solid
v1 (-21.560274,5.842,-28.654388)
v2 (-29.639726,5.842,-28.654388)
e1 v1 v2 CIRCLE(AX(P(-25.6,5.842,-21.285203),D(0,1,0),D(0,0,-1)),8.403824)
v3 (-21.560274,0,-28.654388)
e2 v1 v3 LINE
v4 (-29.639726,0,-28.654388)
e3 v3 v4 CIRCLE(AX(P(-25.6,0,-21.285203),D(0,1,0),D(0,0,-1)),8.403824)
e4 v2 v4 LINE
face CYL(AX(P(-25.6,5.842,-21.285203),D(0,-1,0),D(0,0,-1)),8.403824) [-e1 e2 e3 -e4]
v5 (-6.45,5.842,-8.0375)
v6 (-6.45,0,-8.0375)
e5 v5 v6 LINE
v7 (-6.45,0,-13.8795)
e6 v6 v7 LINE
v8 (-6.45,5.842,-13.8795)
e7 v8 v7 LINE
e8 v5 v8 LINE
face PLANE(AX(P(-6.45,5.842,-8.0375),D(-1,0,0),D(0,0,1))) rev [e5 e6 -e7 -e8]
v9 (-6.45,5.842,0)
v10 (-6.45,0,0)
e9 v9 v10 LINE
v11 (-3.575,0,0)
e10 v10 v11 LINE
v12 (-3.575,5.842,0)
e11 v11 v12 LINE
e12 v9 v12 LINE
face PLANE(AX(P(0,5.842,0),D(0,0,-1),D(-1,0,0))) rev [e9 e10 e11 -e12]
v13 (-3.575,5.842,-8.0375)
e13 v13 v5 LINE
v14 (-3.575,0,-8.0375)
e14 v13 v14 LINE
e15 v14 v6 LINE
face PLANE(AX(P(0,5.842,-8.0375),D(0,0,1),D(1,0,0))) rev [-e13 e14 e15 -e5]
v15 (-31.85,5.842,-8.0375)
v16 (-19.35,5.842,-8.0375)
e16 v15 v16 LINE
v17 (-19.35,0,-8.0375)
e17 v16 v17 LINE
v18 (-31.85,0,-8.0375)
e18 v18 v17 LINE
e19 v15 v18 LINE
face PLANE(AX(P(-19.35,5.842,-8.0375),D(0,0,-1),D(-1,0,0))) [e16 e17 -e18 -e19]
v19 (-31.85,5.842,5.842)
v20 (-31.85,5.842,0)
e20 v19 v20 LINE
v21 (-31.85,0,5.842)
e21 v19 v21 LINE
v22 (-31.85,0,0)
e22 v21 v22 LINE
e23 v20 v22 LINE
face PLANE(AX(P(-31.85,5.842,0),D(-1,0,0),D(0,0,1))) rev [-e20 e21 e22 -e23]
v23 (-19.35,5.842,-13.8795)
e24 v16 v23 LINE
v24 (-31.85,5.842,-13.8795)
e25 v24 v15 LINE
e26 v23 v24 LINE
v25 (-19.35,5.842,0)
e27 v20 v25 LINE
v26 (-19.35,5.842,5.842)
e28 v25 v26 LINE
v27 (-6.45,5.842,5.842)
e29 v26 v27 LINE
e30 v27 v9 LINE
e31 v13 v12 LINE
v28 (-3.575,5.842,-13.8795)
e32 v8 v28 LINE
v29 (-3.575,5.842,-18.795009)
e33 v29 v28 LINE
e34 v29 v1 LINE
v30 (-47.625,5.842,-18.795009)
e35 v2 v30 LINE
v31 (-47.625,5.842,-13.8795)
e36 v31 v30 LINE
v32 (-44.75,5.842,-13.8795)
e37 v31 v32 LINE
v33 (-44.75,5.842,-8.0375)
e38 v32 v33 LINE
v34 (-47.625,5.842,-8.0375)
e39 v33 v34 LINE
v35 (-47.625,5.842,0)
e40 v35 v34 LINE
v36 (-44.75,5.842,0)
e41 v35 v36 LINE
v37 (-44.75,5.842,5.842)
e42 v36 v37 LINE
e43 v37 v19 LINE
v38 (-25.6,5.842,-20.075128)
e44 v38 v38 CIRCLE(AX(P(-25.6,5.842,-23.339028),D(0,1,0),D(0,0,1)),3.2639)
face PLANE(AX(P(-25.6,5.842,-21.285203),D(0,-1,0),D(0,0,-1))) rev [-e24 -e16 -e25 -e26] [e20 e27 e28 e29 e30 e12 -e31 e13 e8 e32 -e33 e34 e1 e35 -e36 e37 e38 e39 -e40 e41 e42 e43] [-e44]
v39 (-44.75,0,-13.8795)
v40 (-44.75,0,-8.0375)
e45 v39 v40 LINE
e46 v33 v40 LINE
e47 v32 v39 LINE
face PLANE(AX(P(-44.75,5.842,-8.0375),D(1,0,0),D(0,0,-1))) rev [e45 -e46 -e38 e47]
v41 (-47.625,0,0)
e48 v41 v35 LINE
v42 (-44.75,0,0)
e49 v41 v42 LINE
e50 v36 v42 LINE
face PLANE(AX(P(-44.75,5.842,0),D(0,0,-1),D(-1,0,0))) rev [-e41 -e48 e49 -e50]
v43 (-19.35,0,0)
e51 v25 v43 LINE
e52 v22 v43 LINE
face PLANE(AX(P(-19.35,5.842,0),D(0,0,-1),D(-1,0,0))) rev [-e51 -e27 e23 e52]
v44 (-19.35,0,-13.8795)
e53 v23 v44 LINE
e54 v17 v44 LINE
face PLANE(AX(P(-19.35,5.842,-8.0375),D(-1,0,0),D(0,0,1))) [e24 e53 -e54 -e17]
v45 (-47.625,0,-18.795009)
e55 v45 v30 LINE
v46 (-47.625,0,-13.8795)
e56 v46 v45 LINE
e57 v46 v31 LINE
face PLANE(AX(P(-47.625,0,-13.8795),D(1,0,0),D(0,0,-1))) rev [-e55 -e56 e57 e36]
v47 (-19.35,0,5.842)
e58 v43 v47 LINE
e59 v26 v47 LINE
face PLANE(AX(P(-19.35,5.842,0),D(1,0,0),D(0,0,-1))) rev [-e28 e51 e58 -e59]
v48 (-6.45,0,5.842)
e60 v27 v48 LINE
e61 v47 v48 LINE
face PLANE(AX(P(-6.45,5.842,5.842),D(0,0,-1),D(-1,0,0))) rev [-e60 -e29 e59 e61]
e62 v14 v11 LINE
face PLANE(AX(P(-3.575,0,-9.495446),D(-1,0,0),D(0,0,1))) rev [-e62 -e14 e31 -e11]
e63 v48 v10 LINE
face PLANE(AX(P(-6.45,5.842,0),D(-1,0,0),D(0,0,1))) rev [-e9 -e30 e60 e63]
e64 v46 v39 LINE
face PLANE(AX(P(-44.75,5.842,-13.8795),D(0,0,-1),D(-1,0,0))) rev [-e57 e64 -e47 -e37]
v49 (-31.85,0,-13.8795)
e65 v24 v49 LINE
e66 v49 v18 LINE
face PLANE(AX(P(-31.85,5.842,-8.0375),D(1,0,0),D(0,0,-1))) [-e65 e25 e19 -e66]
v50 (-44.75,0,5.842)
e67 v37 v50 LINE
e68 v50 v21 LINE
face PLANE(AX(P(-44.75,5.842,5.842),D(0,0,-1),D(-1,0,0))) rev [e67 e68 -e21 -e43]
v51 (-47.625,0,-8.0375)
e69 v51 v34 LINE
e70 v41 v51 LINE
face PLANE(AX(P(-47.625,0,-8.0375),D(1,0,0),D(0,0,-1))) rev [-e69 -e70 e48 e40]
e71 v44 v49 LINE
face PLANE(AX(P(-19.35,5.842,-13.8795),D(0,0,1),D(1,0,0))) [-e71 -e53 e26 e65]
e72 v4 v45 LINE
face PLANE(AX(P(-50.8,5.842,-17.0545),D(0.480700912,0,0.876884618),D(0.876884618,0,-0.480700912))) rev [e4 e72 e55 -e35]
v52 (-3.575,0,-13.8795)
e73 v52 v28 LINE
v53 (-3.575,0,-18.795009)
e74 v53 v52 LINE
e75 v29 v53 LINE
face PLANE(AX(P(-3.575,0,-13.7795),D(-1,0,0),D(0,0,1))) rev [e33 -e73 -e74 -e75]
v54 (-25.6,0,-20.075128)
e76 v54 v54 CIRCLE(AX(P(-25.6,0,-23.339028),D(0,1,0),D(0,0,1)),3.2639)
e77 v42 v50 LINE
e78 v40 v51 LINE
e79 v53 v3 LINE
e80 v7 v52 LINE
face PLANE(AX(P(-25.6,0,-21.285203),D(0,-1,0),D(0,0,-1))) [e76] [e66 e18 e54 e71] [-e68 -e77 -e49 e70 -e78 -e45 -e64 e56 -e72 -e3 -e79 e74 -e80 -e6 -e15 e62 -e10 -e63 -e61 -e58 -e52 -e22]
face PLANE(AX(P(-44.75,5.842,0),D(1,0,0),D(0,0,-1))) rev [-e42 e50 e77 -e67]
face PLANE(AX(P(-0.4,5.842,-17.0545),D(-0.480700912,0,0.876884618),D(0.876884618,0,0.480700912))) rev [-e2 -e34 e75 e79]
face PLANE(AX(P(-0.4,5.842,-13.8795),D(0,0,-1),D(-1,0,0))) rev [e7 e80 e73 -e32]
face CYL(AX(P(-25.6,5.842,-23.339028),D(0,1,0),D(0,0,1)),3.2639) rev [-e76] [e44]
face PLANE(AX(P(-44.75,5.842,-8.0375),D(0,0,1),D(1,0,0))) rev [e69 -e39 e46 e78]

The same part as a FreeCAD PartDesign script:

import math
import FreeCAD as App
import Part
import Sketcher
from FreeCAD import Vector
Q = App.Units.Quantity


def add_polygon(sketch, points):
    """Adds a closed chain of lines whose ends are joined by coincident constraints."""
    first, n = sketch.GeometryCount, len(points)
    for a, b in zip(points, points[1:] + points[:1]):
        sketch.addGeometry(Part.LineSegment(App.Vector(*a, 0), App.Vector(*b, 0)), False)
    for i in range(n):
        sketch.addConstraint(Sketcher.Constraint("Coincident", first + i, 2, first + (i + 1) % n, 1))

doc = App.newDocument("Part")
params = doc.addObject("Spreadsheet::Sheet", "Params")
for row, (alias, value) in enumerate([
    ("sketch1_height", "0.23 in"),
    ("sketch1_height2", "0.125 in"),
    ("pad1_length", "0.23 in"),
    ("sketch2_diameter", "0.257 in"),
    ("hole_diameter", "0.257 in"),
    ("sketch3_height", "0.25 in"),
    ("sketch3_width", "0.125 in"),
], start=1):
    params.set(f"A{row}", alias)
    params.set(f"B{row}", "=" + value)
    params.setAlias(f"B{row}", alias)

body = doc.addObject("PartDesign::Body", "Body")

# Sketch on XZ plane
sketch1 = body.newObject("Sketcher::SketchObject", "Sketch")
sketch1.AttachmentSupport = (doc.getObject("XZ_Plane"), [""])
sketch1.MapMode = "FlatFace"
sketch1.addGeometry(Part.LineSegment(Vector(-6.45, 0, 0), Vector(0, 0, 0)), False)  # 0
sketch1.addGeometry(Part.LineSegment(Vector(0, 0, 0), Vector(0, -8.0375, 0)), False)  # 1
sketch1.addGeometry(Part.LineSegment(Vector(0, -8.0375, 0), Vector(-6.45, -8.0375, 0)), False)  # 2
sketch1.addGeometry(Part.LineSegment(Vector(-6.45, -8.0375, 0), Vector(-6.45, -13.8795, 0)), False)  # 3
sketch1.addGeometry(Part.LineSegment(Vector(-6.45, -13.8795, 0), Vector(-0.4, -13.8795, 0)), False)  # 4
sketch1.addGeometry(Part.LineSegment(Vector(-0.4, -13.8795, 0), Vector(-0.4, -17.0545, 0)), False)  # 5
sketch1.addGeometry(Part.LineSegment(Vector(-0.4, -17.0545, 0), Vector(-21.560274, -28.654388, 0)), False)  # 6
sketch1.addGeometry(Part.ArcOfCircle(Part.Circle(Vector(-25.6, -21.285203, 0), Vector(0, 0, 1), 8.403824), math.radians(-118.73119), math.radians(-61.26881)), False)  # 7
sketch1.addGeometry(Part.LineSegment(Vector(-29.639726, -28.654388, 0), Vector(-50.8, -17.0545, 0)), False)  # 8
sketch1.addGeometry(Part.LineSegment(Vector(-50.8, -17.0545, 0), Vector(-50.8, -13.8795, 0)), False)  # 9
sketch1.addGeometry(Part.LineSegment(Vector(-50.8, -13.8795, 0), Vector(-44.75, -13.8795, 0)), False)  # 10
sketch1.addGeometry(Part.LineSegment(Vector(-44.75, -13.8795, 0), Vector(-44.75, -8.0375, 0)), False)  # 11
sketch1.addGeometry(Part.LineSegment(Vector(-44.75, -8.0375, 0), Vector(-50.8, -8.0375, 0)), False)  # 12
sketch1.addGeometry(Part.LineSegment(Vector(-50.8, -8.0375, 0), Vector(-50.8, 0, 0)), False)  # 13
sketch1.addGeometry(Part.LineSegment(Vector(-50.8, 0, 0), Vector(-44.75, 0, 0)), False)  # 14
sketch1.addGeometry(Part.LineSegment(Vector(-44.75, 0, 0), Vector(-44.75, 5.842, 0)), False)  # 15
sketch1.addGeometry(Part.LineSegment(Vector(-44.75, 5.842, 0), Vector(-31.85, 5.842, 0)), False)  # 16
sketch1.addGeometry(Part.LineSegment(Vector(-31.85, 5.842, 0), Vector(-31.85, 0, 0)), False)  # 17
sketch1.addGeometry(Part.LineSegment(Vector(-31.85, 0, 0), Vector(-19.35, 0, 0)), False)  # 18
sketch1.addGeometry(Part.LineSegment(Vector(-19.35, 0, 0), Vector(-19.35, 5.842, 0)), False)  # 19
sketch1.addGeometry(Part.LineSegment(Vector(-19.35, 5.842, 0), Vector(-6.45, 5.842, 0)), False)  # 20
sketch1.addGeometry(Part.LineSegment(Vector(-6.45, 5.842, 0), Vector(-6.45, 0, 0)), False)  # 21
add_polygon(sketch1, [(-31.85, -8.0375), (-31.85, -13.8795), (-19.35, -13.8795), (-19.35, -8.0375)])  # lines 22-25
sketch1.addConstraint([
    Sketcher.Constraint("Coincident", 0, 2, 1, 1),
    Sketcher.Constraint("Coincident", 1, 2, 2, 1),
    Sketcher.Constraint("Coincident", 2, 2, 3, 1),
    Sketcher.Constraint("Coincident", 3, 2, 4, 1),
    Sketcher.Constraint("Coincident", 4, 2, 5, 1),
    Sketcher.Constraint("Coincident", 5, 2, 6, 1),
    Sketcher.Constraint("Tangent", 6, 2, 7, 2),
    Sketcher.Constraint("Tangent", 7, 1, 8, 1),
    Sketcher.Constraint("Coincident", 8, 2, 9, 1),
    Sketcher.Constraint("Coincident", 9, 2, 10, 1),
    Sketcher.Constraint("Coincident", 10, 2, 11, 1),
    Sketcher.Constraint("Coincident", 11, 2, 12, 1),
    Sketcher.Constraint("Coincident", 12, 2, 13, 1),
    Sketcher.Constraint("Coincident", 13, 2, 14, 1),
    Sketcher.Constraint("Coincident", 14, 2, 15, 1),
    Sketcher.Constraint("Coincident", 15, 2, 16, 1),
    Sketcher.Constraint("Coincident", 16, 2, 17, 1),
    Sketcher.Constraint("Coincident", 17, 2, 18, 1),
    Sketcher.Constraint("Coincident", 18, 2, 19, 1),
    Sketcher.Constraint("Coincident", 19, 2, 20, 1),
    Sketcher.Constraint("Coincident", 20, 2, 21, 1),
    Sketcher.Constraint("Coincident", 21, 2, 0, 1),
    Sketcher.Constraint("Horizontal", 0),
    Sketcher.Constraint("Vertical", 1),
    Sketcher.Constraint("Horizontal", 2),
    Sketcher.Constraint("Vertical", 3),
    Sketcher.Constraint("Horizontal", 4),
    Sketcher.Constraint("Vertical", 5),
    Sketcher.Constraint("Vertical", 9),
    Sketcher.Constraint("Horizontal", 10),
    Sketcher.Constraint("Vertical", 11),
    Sketcher.Constraint("Horizontal", 12),
    Sketcher.Constraint("Vertical", 13),
    Sketcher.Constraint("Horizontal", 14),
    Sketcher.Constraint("Vertical", 15),
    Sketcher.Constraint("Horizontal", 16),
    Sketcher.Constraint("Vertical", 17),
    Sketcher.Constraint("Horizontal", 18),
    Sketcher.Constraint("Vertical", 19),
    Sketcher.Constraint("Horizontal", 20),
    Sketcher.Constraint("Vertical", 21),
    Sketcher.Constraint("Vertical", 22),
    Sketcher.Constraint("Horizontal", 23),
    Sketcher.Constraint("Vertical", 24),
    Sketcher.Constraint("Horizontal", 25),
    Sketcher.Constraint("Coincident", 0, 2, -1, 1),
    Sketcher.Constraint("PointOnObject", 13, 2, -1),
    Sketcher.Constraint("PointOnObject", 17, 2, -1),
    Sketcher.Constraint("Horizontal", 6, 2, 7, 1),
    Sketcher.Constraint("Horizontal", 5, 2, 8, 2),
    Sketcher.Constraint("Horizontal", 4, 2, 9, 2),
    Sketcher.Constraint("Horizontal", 2, 2, 11, 2),
    Sketcher.Constraint("Horizontal", 16, 2, 19, 2),
    Sketcher.Constraint("Horizontal", 10, 2, 22, 2),
    Sketcher.Constraint("Horizontal", 12, 2, 24, 2),
    Sketcher.Constraint("Vertical", 9, 2, 12, 2),
    Sketcher.Constraint("Vertical", 11, 2, 14, 2),
    Sketcher.Constraint("Vertical", 3, 2, 20, 2),
    Sketcher.Constraint("Vertical", 17, 2, 22, 2),
    Sketcher.Constraint("Vertical", 19, 2, 23, 2),
    Sketcher.Constraint("Equal", 4, 10),
    Sketcher.Constraint("Equal", 16, 20),
    Sketcher.Constraint("Equal", 11, 15),
    Sketcher.Constraint("DistanceX", 8, 2, -1, 1, Q("2 in")),
    Sketcher.Constraint("DistanceY", 3, 2, 3, 1, Q("0.23 in")),
    Sketcher.Constraint("DistanceY", 5, 2, 5, 1, Q("0.125 in")),
    Sketcher.Constraint("DistanceY", 7, 3, -1, 1, Q("0.8380001 in")),
    Sketcher.Constraint("DistanceX", 0, 1, 0, 2, 6.45),
    Sketcher.Constraint("DistanceX", 4, 1, 4, 2, 6.05),
    Sketcher.Constraint("DistanceX", 16, 1, 16, 2, 12.9),
    Sketcher.Constraint("DistanceY", 1, 2, 1, 1, 8.0375),
    Sketcher.Constraint("Radius", 7, 8.403824),
])
sketch1.setExpression("Constraints[68]", "Params.sketch1_height")
sketch1.setExpression("Constraints[69]", "Params.sketch1_height2")
pad1 = body.newObject("PartDesign::Pad", "Pad")
pad1.Profile = sketch1
pad1.setExpression("Length", "Params.pad1_length")
pad1.Reversed = True

# Sketch on XZ plane
sketch2 = body.newObject("Sketcher::SketchObject", "Sketch001")
sketch2.AttachmentSupport = (doc.getObject("XZ_Plane"), [""])
sketch2.MapMode = "FlatFace"
sketch2.AttachmentOffset = App.Placement(Vector(0, 0, -0.23 * 25.4), App.Rotation())
sketch2.addGeometry(Part.Circle(Vector(-25.6, -23.339028, 0), Vector(0, 0, 1), 3.2639), False)
sketch2.addConstraint([
    Sketcher.Constraint("Diameter", 0, Q("0.257 in")),
    Sketcher.Constraint("DistanceX", 0, 3, -1, 1, 25.6),
    Sketcher.Constraint("DistanceY", 0, 3, -1, 1, 23.339028),
])
sketch2.setExpression("Constraints[0]", "Params.sketch2_diameter")
doc.recompute()
hole = body.newObject("PartDesign::Hole", "Hole")
hole.Profile = sketch2
hole.ThreadType = "None"
hole.setExpression("Diameter", "Params.hole_diameter")
hole.DepthType = "ThroughAll"
hole.Reversed = True

# Sketch on XZ plane
sketch3 = body.newObject("Sketcher::SketchObject", "Sketch002")
sketch3.AttachmentSupport = (doc.getObject("XZ_Plane"), [""])
sketch3.MapMode = "FlatFace"
sketch3.AttachmentOffset = App.Placement(Vector(0, 0, -0.23 * 25.4), App.Rotation())
add_polygon(sketch3, [(-50.8, -8.0375), (-50.8, 0), (-47.625, 0), (-47.625, -8.0375)])  # lines 0-3
add_polygon(sketch3, [(-3.575, -9.495446), (-3.575, 0), (0, 0), (0, -9.495446)])  # lines 4-7
add_polygon(sketch3, [(-50.8, -20.2295), (-50.8, -13.8795), (-47.625, -13.8795), (-47.625, -20.2295)])  # lines 8-11
add_polygon(sketch3, [(-3.575, -20.1295), (-3.575, -13.7795), (-0.4, -13.7795), (-0.4, -20.1295)])  # lines 12-15
sketch3.addConstraint([
    Sketcher.Constraint("Vertical", 0),
    Sketcher.Constraint("Horizontal", 1),
    Sketcher.Constraint("Vertical", 2),
    Sketcher.Constraint("Horizontal", 3),
    Sketcher.Constraint("Vertical", 4),
    Sketcher.Constraint("Horizontal", 5),
    Sketcher.Constraint("Vertical", 6),
    Sketcher.Constraint("Horizontal", 7),
    Sketcher.Constraint("Vertical", 8),
    Sketcher.Constraint("Horizontal", 9),
    Sketcher.Constraint("Vertical", 10),
    Sketcher.Constraint("Horizontal", 11),
    Sketcher.Constraint("Vertical", 12),
    Sketcher.Constraint("Horizontal", 13),
    Sketcher.Constraint("Vertical", 14),
    Sketcher.Constraint("Horizontal", 15),
    Sketcher.Constraint("Coincident", 5, 2, -1, 1),
    Sketcher.Constraint("PointOnObject", 0, 2, -1),
    Sketcher.Constraint("Vertical", 3, 2, 8, 2),
    Sketcher.Constraint("Vertical", 2, 2, 9, 2),
    Sketcher.Constraint("Vertical", 7, 2, 12, 2),
    Sketcher.Constraint("Equal", 11, 13),
    Sketcher.Constraint("Equal", 10, 12),
    Sketcher.Constraint("DistanceX", 0, 2, -1, 1, Q("2 in")),
    Sketcher.Constraint("DistanceY", 8, 1, 8, 2, Q("0.25 in")),
    Sketcher.Constraint("DistanceX", 1, 1, 1, 2, Q("0.125 in")),
    Sketcher.Constraint("DistanceY", 8, 2, 3, 2, Q("0.23 in")),
    Sketcher.Constraint("DistanceX", 5, 1, 5, 2, 3.575),
    Sketcher.Constraint("DistanceY", 0, 1, 0, 2, 8.0375),
    Sketcher.Constraint("DistanceY", 12, 2, -1, 1, Q("0.5425 in")),
    Sketcher.Constraint("DistanceY", 4, 1, 4, 2, 9.495446),
])
sketch3.setExpression("Constraints[40]", "Params.sketch3_height")
sketch3.setExpression("Constraints[41]", "Params.sketch3_width")
pocket1 = body.newObject("PartDesign::Pocket", "Pocket")
pocket1.Profile = sketch3
pocket1.Type = "ThroughAll"
pocket1.Reversed = True

doc.recompute()
